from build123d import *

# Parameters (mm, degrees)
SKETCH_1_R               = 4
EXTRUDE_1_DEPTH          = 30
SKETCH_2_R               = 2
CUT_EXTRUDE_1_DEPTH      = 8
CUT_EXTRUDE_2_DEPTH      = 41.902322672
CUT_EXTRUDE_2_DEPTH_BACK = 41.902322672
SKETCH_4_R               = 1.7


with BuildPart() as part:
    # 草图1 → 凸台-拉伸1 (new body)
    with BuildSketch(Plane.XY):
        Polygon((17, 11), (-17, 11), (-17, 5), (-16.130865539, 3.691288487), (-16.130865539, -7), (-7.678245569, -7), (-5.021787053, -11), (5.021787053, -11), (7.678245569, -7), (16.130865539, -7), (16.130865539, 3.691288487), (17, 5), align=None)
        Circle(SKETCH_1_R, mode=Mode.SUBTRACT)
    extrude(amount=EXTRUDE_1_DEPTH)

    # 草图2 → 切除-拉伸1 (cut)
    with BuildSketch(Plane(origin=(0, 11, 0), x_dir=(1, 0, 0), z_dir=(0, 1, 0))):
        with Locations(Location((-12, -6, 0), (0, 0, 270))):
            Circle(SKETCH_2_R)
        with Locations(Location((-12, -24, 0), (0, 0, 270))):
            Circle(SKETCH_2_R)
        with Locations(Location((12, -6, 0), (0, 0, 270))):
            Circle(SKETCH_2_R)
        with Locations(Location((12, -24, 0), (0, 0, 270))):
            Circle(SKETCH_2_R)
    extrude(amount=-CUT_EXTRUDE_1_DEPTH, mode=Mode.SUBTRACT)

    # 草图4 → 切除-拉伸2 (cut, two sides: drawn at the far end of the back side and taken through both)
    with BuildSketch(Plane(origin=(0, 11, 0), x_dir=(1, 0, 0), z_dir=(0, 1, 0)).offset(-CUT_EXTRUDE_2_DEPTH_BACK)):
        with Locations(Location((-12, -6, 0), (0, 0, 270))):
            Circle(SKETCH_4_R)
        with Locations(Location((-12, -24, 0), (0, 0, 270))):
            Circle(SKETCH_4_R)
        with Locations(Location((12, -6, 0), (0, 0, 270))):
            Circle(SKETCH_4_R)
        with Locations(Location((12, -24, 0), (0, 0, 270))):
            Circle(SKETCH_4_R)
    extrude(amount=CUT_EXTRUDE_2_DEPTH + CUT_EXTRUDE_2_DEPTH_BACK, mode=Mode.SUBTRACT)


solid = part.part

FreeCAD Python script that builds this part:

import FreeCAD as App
import Part
import Sketcher
from FreeCAD import Vector
Q = App.Units.Quantity

doc = App.newDocument("Part")
params = doc.addObject("Spreadsheet::Sheet", "Params")
for row, (alias, value) in enumerate([
    ("sketch1_diameter", "8 mm"),
    ("sketch1_width", "34 mm"),
    ("sketch1_height", "6 mm"),
    ("pad1_length", "30 mm"),
    ("sketch2_diameter", "4 mm"),
    ("pocket1_length", "8 mm"),
    ("sketch3_diameter", "3.4 mm"),
], start=1):
    params.set(f"A{row}", alias)
    params.set(f"B{row}", "=" + value)
    params.setAlias(f"B{row}", alias)

body = doc.addObject("PartDesign::Body", "Body")

sketch1 = body.newObject("Sketcher::SketchObject", "Sketch")
sketch1.AttachmentSupport = (doc.getObject("XY_Plane"), [""])
sketch1.MapMode = "FlatFace"
sketch1.addGeometry([
    Part.LineSegment(Vector(17, 11, 0), Vector(-17, 11, 0)),
    Part.LineSegment(Vector(-17, 11, 0), Vector(-17, 5, 0)),
    Part.LineSegment(Vector(-17, 5, 0), Vector(-16.130866, 3.691288, 0)),
    Part.LineSegment(Vector(-16.130866, 3.691288, 0), Vector(-16.130866, -7, 0)),
    Part.LineSegment(Vector(-16.130866, -7, 0), Vector(-7.678246, -7, 0)),
    Part.LineSegment(Vector(-7.678246, -7, 0), Vector(-5.021787, -11, 0)),
    Part.LineSegment(Vector(-5.021787, -11, 0), Vector(5.021787, -11, 0)),
    Part.LineSegment(Vector(5.021787, -11, 0), Vector(7.678246, -7, 0)),
    Part.LineSegment(Vector(7.678246, -7, 0), Vector(16.130866, -7, 0)),
    Part.LineSegment(Vector(16.130866, -7, 0), Vector(16.130866, 3.691288, 0)),
    Part.LineSegment(Vector(16.130866, 3.691288, 0), Vector(17, 5, 0)),
    Part.LineSegment(Vector(17, 5, 0), Vector(17, 11, 0)),
    Part.Circle(Vector(0, 0, 0), Vector(0, 0, 1), 4),
], False)
sketch1.addConstraint([
    Sketcher.Constraint("Coincident", 0, 2, 1, 1),
    Sketcher.Constraint("Coincident", 1, 2, 2, 1),
    Sketcher.Constraint("Coincident", 2, 2, 3, 1),
    Sketcher.Constraint("Coincident", 3, 2, 4, 1),
    Sketcher.Constraint("Coincident", 4, 2, 5, 1),
    Sketcher.Constraint("Coincident", 5, 2, 6, 1),
    Sketcher.Constraint("Coincident", 6, 2, 7, 1),
    Sketcher.Constraint("Coincident", 7, 2, 8, 1),
    Sketcher.Constraint("Coincident", 8, 2, 9, 1),
    Sketcher.Constraint("Coincident", 9, 2, 10, 1),
    Sketcher.Constraint("Coincident", 10, 2, 11, 1),
    Sketcher.Constraint("Coincident", 11, 2, 0, 1),
    Sketcher.Constraint("Horizontal", 0),
    Sketcher.Constraint("Vertical", 1),
    Sketcher.Constraint("Vertical", 3),
    Sketcher.Constraint("Horizontal", 4),
    Sketcher.Constraint("Horizontal", 6),
    Sketcher.Constraint("Horizontal", 8),
    Sketcher.Constraint("Vertical", 9),
    Sketcher.Constraint("Vertical", 11),
    Sketcher.Constraint("Coincident", 12, 3, -1, 1),
    Sketcher.Constraint("Symmetric", 4, 2, 7, 2, -2),
    Sketcher.Constraint("Symmetric", 2, 2, 9, 2, -2),
    Sketcher.Constraint("Symmetric", 1, 2, 10, 2, -2),
    Sketcher.Constraint("Parallel", 2, 5),
    Sketcher.Constraint("Parallel", 7, 10),
    Sketcher.Constraint("Diameter", 12, Q("8 mm")),
    Sketcher.Constraint("DistanceX", 0, 2, 0, 1, Q("34 mm")),
    Sketcher.Constraint("DistanceY", 1, 2, 1, 1, Q("6 mm")),
    Sketcher.Constraint("DistanceY", -1, 1, 0, 2, Q("11 mm")),
    Sketcher.Constraint("DistanceY", 3, 2, -1, 1, Q("7 mm")),
    Sketcher.Constraint("DistanceY", 5, 2, -1, 1, Q("11 mm")),
    Sketcher.Constraint("DistanceX", 4, 1, 4, 2, Q("8.45262 mm")),
    Sketcher.Constraint("DistanceY", 3, 2, 3, 1, Q("10.691288 mm")),
    Sketcher.Constraint("DistanceX", 6, 1, 6, 2, Q("10.043574 mm")),
])
sketch1.setExpression("Constraints[26]", "Params.sketch1_diameter")
sketch1.setExpression("Constraints[27]", "Params.sketch1_width")
sketch1.setExpression("Constraints[28]", "Params.sketch1_height")
pad1 = body.newObject("PartDesign::Pad", "Pad")
pad1.Profile = sketch1
pad1.setExpression("Length", "Params.pad1_length")

sketch2 = body.newObject("Sketcher::SketchObject", "Sketch001")
sketch2.AttachmentSupport = (doc.getObject("XZ_Plane"), [""])
sketch2.MapMode = "FlatFace"
sketch2.AttachmentOffset = App.Placement(Vector(0, 0, -11), App.Rotation())
sketch2.addGeometry([
    Part.Circle(Vector(-12, 6, 0), Vector(0, 0, 1), 2),
    Part.Circle(Vector(-12, 24, 0), Vector(0, 0, 1), 2),
    Part.Circle(Vector(12, 6, 0), Vector(0, 0, 1), 2),
    Part.Circle(Vector(12, 24, 0), Vector(0, 0, 1), 2),
], False)
sketch2.addConstraint([
    Sketcher.Constraint("Equal", 0, 1),
    Sketcher.Constraint("Equal", 1, 2),
    Sketcher.Constraint("Equal", 2, 3),
    Sketcher.Constraint("Symmetric", 0, 3, 2, 3, -2),
    Sketcher.Constraint("Symmetric", 1, 3, 3, 3, -2),
    Sketcher.Constraint("Vertical", 0, 3, 1, 3),
    Sketcher.Constraint("Diameter", 0, Q("4 mm")),
    Sketcher.Constraint("DistanceX", 0, 3, -1, 1, Q("12 mm")),
    Sketcher.Constraint("DistanceY", -1, 1, 0, 3, Q("6 mm")),
    Sketcher.Constraint("DistanceY", -1, 1, 1, 3, Q("24 mm")),
])
sketch2.setExpression("Constraints[6]", "Params.sketch2_diameter")
pocket1 = body.newObject("PartDesign::Pocket", "Pocket")
pocket1.Profile = sketch2
pocket1.setExpression("Length", "Params.pocket1_length")
pocket1.Reversed = True

sketch3 = body.newObject("Sketcher::SketchObject", "Sketch002")
sketch3.AttachmentSupport = (doc.getObject("XZ_Plane"), [""])
sketch3.MapMode = "FlatFace"
sketch3.AttachmentOffset = App.Placement(Vector(0, 0, -11), App.Rotation())
sketch3.addGeometry([
    Part.Circle(Vector(-12, 6, 0), Vector(0, 0, 1), 1.7),
    Part.Circle(Vector(-12, 24, 0), Vector(0, 0, 1), 1.7),
    Part.Circle(Vector(12, 6, 0), Vector(0, 0, 1), 1.7),
    Part.Circle(Vector(12, 24, 0), Vector(0, 0, 1), 1.7),
], False)
sketch3.addConstraint([
    Sketcher.Constraint("Equal", 0, 1),
    Sketcher.Constraint("Equal", 1, 2),
    Sketcher.Constraint("Equal", 2, 3),
    Sketcher.Constraint("Symmetric", 0, 3, 2, 3, -2),
    Sketcher.Constraint("Symmetric", 1, 3, 3, 3, -2),
    Sketcher.Constraint("Vertical", 0, 3, 1, 3),
    Sketcher.Constraint("Diameter", 0, Q("3.4 mm")),
    Sketcher.Constraint("DistanceX", 0, 3, -1, 1, Q("12 mm")),
    Sketcher.Constraint("DistanceY", -1, 1, 0, 3, Q("6 mm")),
    Sketcher.Constraint("DistanceY", -1, 1, 1, 3, Q("24 mm")),
])
sketch3.setExpression("Constraints[6]", "Params.sketch3_diameter")
pocket2 = body.newObject("PartDesign::Pocket", "Pocket001")
pocket2.Profile = sketch3
pocket2.Type = "ThroughAll"
pocket2.Midplane = True

doc.recompute()
